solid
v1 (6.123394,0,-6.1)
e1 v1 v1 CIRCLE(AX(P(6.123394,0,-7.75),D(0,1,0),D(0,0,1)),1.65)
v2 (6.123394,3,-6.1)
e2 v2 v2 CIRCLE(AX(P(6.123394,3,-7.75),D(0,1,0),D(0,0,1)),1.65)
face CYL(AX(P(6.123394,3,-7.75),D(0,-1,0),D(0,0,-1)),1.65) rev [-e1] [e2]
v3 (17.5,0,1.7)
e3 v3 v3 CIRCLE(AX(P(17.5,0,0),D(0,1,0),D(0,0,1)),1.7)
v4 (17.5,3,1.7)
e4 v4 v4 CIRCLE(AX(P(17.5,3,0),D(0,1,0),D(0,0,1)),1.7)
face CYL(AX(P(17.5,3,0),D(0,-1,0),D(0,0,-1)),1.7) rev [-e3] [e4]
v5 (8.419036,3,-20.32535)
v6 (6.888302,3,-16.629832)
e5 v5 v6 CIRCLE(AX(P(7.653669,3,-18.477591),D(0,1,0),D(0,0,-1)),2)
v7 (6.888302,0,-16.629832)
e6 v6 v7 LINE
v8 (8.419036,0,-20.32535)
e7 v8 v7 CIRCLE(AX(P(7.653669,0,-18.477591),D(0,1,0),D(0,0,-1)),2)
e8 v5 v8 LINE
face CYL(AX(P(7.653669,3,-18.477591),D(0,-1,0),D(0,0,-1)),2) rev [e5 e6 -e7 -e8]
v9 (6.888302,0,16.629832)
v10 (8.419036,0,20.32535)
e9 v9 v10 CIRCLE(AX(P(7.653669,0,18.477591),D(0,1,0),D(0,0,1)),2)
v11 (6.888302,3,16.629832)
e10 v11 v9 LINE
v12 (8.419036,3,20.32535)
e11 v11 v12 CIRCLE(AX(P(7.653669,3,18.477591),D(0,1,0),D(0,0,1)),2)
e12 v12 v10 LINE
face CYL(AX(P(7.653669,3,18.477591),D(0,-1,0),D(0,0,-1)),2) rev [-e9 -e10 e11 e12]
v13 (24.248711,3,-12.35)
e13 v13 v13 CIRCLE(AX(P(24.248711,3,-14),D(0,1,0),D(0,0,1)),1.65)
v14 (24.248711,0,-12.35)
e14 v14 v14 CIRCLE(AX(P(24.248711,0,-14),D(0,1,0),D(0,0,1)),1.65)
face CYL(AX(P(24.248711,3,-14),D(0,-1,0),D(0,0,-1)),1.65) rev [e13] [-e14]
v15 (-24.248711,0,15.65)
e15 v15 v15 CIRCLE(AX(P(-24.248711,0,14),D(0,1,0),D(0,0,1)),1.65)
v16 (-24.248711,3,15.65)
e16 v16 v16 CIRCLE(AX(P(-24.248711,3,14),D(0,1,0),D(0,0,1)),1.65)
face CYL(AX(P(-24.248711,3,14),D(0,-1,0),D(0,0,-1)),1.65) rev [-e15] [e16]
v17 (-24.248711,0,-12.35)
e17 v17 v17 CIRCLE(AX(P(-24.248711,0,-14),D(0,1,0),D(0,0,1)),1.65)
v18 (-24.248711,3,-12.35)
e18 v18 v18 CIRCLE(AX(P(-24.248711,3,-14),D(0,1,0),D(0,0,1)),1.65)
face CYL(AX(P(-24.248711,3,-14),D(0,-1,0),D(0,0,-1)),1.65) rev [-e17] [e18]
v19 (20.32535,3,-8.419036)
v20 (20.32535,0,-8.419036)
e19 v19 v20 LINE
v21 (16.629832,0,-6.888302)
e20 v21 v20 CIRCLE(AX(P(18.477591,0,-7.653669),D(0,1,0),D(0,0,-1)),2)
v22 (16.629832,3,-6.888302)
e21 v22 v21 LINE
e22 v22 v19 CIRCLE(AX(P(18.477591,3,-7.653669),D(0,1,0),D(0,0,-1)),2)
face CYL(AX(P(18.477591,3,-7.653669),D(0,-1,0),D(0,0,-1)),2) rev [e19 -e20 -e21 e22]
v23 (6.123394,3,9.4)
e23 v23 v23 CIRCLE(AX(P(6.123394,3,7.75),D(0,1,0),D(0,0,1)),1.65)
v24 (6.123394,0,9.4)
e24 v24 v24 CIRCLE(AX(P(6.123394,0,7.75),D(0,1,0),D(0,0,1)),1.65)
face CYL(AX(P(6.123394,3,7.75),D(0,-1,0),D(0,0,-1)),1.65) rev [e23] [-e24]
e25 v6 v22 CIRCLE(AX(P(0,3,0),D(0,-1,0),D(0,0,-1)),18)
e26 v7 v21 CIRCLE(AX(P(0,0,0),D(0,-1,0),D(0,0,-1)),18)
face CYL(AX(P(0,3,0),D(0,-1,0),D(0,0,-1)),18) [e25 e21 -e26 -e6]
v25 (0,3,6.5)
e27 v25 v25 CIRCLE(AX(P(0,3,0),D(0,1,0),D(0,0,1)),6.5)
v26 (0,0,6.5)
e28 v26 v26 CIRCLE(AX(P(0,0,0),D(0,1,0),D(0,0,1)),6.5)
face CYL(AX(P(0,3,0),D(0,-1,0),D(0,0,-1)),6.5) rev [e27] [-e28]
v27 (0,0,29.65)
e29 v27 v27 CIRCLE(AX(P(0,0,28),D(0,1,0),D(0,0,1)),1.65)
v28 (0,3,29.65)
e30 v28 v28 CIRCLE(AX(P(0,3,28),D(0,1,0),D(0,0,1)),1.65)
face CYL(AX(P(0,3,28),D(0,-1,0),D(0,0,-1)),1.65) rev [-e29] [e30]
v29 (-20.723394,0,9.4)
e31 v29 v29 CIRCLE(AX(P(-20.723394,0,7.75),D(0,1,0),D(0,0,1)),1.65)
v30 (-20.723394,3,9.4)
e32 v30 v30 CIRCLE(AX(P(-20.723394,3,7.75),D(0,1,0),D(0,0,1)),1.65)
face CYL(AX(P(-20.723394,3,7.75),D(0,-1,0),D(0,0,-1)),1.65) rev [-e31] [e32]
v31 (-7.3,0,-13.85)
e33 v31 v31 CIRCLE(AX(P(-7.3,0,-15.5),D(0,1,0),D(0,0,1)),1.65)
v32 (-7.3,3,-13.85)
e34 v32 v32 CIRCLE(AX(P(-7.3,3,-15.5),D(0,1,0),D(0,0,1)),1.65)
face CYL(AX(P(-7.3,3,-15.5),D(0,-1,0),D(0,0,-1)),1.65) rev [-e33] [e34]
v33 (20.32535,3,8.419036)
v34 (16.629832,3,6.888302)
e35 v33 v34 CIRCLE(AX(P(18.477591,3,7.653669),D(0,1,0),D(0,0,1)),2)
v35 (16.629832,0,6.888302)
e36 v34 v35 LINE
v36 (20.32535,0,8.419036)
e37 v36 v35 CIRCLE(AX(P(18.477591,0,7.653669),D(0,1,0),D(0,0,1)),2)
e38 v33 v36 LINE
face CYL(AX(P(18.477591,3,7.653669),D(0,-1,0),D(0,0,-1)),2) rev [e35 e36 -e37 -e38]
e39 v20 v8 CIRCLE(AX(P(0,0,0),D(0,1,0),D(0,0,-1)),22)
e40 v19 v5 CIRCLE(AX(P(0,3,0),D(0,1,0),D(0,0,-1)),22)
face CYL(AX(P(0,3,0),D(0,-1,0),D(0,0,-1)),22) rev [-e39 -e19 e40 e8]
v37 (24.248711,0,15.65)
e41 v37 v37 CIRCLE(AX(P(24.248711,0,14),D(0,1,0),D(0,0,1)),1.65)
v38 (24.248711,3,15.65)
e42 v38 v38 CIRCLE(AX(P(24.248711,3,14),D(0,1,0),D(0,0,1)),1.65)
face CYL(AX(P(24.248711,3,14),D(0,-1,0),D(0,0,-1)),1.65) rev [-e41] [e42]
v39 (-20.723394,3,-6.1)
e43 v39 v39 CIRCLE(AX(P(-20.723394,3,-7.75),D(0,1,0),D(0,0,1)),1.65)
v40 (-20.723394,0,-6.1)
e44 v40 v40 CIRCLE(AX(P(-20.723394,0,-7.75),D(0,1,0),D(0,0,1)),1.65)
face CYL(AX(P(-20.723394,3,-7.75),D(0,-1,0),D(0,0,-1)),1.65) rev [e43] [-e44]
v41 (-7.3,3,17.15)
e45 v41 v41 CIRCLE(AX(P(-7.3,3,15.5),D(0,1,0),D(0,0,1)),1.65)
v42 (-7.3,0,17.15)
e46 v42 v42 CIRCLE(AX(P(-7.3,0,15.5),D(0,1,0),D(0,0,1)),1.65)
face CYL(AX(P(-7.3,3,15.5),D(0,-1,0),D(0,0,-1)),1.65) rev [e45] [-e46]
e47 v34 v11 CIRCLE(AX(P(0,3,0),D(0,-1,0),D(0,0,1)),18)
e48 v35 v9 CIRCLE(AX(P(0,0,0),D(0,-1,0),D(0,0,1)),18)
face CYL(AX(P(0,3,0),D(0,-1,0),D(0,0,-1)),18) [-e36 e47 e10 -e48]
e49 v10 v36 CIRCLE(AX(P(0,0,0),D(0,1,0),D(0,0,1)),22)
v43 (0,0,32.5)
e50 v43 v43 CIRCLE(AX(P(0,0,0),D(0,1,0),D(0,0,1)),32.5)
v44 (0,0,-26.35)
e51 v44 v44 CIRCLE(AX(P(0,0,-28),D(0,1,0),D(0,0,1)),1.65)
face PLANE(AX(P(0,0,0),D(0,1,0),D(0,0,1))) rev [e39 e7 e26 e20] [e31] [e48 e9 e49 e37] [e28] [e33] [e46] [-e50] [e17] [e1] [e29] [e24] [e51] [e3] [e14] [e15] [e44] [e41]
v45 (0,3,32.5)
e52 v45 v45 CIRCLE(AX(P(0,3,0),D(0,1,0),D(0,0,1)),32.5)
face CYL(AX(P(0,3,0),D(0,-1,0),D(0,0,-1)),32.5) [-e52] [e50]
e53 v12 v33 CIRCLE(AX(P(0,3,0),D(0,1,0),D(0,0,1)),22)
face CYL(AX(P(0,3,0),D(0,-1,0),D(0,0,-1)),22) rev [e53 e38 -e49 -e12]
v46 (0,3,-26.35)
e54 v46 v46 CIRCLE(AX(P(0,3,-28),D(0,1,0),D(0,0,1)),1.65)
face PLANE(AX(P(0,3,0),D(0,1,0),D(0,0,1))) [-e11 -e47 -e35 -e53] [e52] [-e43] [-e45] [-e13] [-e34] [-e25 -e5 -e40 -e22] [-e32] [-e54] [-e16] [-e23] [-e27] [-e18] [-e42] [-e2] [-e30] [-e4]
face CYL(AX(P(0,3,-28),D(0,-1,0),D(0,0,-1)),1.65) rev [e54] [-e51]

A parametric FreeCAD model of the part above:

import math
import FreeCAD as App
import Part
import Sketcher

doc = App.newDocument("Part")
body = doc.addObject("PartDesign::Body", "Body")

# Sketch on XZ plane
sketch1 = body.newObject("Sketcher::SketchObject", "Sketch")
sketch1.AttachmentSupport = (doc.getObject("XZ_Plane"), [""])
sketch1.MapMode = "FlatFace"
sketch1.addGeometry(Part.Circle(App.Vector(0, 0, 0), App.Vector(0, 0, 1), 32.5), False)
sketch1.addGeometry(Part.Circle(App.Vector(-24.2, -14, 0), App.Vector(0, 0, 1), 1.6), False)
sketch1.addGeometry(Part.Circle(App.Vector(-20.7, -7.8, 0), App.Vector(0, 0, 1), 1.6), False)
sketch1.addGeometry(Part.Circle(App.Vector(-7.3, -15.5, 0), App.Vector(0, 0, 1), 1.6), False)
sketch1.addGeometry(Part.Circle(App.Vector(0, -28, 0), App.Vector(0, 0, 1), 1.6), False)
sketch1.addGeometry(Part.Circle(App.Vector(-24.2, 14, 0), App.Vector(0, 0, 1), 1.6), False)
sketch1.addGeometry(Part.Circle(App.Vector(-20.7, 7.8, 0), App.Vector(0, 0, 1), 1.6), False)
sketch1.addGeometry(Part.Circle(App.Vector(-7.3, 15.5, 0), App.Vector(0, 0, 1), 1.6), False)
sketch1.addGeometry(Part.Circle(App.Vector(6.1, -7.8, 0), App.Vector(0, 0, 1), 1.6), False)
sketch1.addGeometry(Part.Circle(App.Vector(0, 0, 0), App.Vector(0, 0, 1), 6.5), False)
sketch1.addGeometry(Part.ArcOfCircle(Part.Circle(App.Vector(7.7, -18.5, 0), App.Vector(0, 0, 1), 2), math.radians(112), math.radians(293)), False)
sketch1.addGeometry(Part.ArcOfCircle(Part.Circle(App.Vector(0, 0, 0), App.Vector(0, 0, 1), 22), math.radians(-68), math.radians(-22)), False)
sketch1.addGeometry(Part.ArcOfCircle(Part.Circle(App.Vector(18.5, -7.7, 0), App.Vector(0, 0, 1), 2), math.radians(-23), math.radians(158)), False)
sketch1.addGeometry(Part.ArcOfCircle(Part.Circle(App.Vector(0, 0, 0), App.Vector(0, 0, 1), 18), math.radians(-67), math.radians(-23)), False)
sketch1.addGeometry(Part.Circle(App.Vector(17.5, 0, 0), App.Vector(0, 0, 1), 1.7), False)
sketch1.addGeometry(Part.Circle(App.Vector(24.2, -14, 0), App.Vector(0, 0, 1), 1.6), False)
sketch1.addGeometry(Part.Circle(App.Vector(6.1, 7.8, 0), App.Vector(0, 0, 1), 1.6), False)
sketch1.addGeometry(Part.Circle(App.Vector(0, 28, 0), App.Vector(0, 0, 1), 1.6), False)
sketch1.addGeometry(Part.ArcOfCircle(Part.Circle(App.Vector(0, 0, 0), App.Vector(0, 0, 1), 22), math.radians(22), math.radians(68)), False)
sketch1.addGeometry(Part.ArcOfCircle(Part.Circle(App.Vector(7.7, 18.5, 0), App.Vector(0, 0, 1), 2), math.radians(67), math.radians(248)), False)
sketch1.addGeometry(Part.ArcOfCircle(Part.Circle(App.Vector(0, 0, 0), App.Vector(0, 0, 1), 18), math.radians(23), math.radians(67)), False)
sketch1.addGeometry(Part.ArcOfCircle(Part.Circle(App.Vector(18.5, 7.7, 0), App.Vector(0, 0, 1), 2), math.radians(-158), math.radians(23)), False)
sketch1.addGeometry(Part.Circle(App.Vector(24.2, 14, 0), App.Vector(0, 0, 1), 1.6), False)
sketch1.addConstraint(Sketcher.Constraint("Tangent", 10, 2, 11, 1))
sketch1.addConstraint(Sketcher.Constraint("Tangent", 11, 2, 12, 1))
sketch1.addConstraint(Sketcher.Constraint("Tangent", 12, 2, 13, 2))
sketch1.addConstraint(Sketcher.Constraint("Tangent", 13, 1, 10, 1))
sketch1.addConstraint(Sketcher.Constraint("Tangent", 18, 2, 19, 1))
sketch1.addConstraint(Sketcher.Constraint("Tangent", 19, 2, 20, 2))
sketch1.addConstraint(Sketcher.Constraint("Tangent", 20, 1, 21, 1))
sketch1.addConstraint(Sketcher.Constraint("Tangent", 21, 2, 18, 1))
sketch1.addConstraint(Sketcher.Constraint("Coincident", 0, 3, -1, 1))
sketch1.addConstraint(Sketcher.Constraint("Coincident", 9, 3, -1, 1))
sketch1.addConstraint(Sketcher.Constraint("Coincident", 11, 3, -1, 1))
sketch1.addConstraint(Sketcher.Constraint("Coincident", 13, 3, -1, 1))
sketch1.addConstraint(Sketcher.Constraint("Coincident", 18, 3, -1, 1))
sketch1.addConstraint(Sketcher.Constraint("Coincident", 20, 3, -1, 1))
sketch1.addConstraint(Sketcher.Constraint("Equal", 1, 2))
sketch1.addConstraint(Sketcher.Constraint("Equal", 2, 3))
sketch1.addConstraint(Sketcher.Constraint("Equal", 3, 4))
sketch1.addConstraint(Sketcher.Constraint("Equal", 4, 5))
sketch1.addConstraint(Sketcher.Constraint("Equal", 5, 6))
sketch1.addConstraint(Sketcher.Constraint("Equal", 6, 7))
sketch1.addConstraint(Sketcher.Constraint("Equal", 7, 8))
sketch1.addConstraint(Sketcher.Constraint("Equal", 8, 15))
sketch1.addConstraint(Sketcher.Constraint("Equal", 15, 16))
sketch1.addConstraint(Sketcher.Constraint("Equal", 16, 17))
sketch1.addConstraint(Sketcher.Constraint("Equal", 11, 18))
sketch1.addConstraint(Sketcher.Constraint("Equal", 12, 19))
sketch1.addConstraint(Sketcher.Constraint("Equal", 17, 22))
sketch1.addConstraint(Sketcher.Constraint("Symmetric", 5, 3, 15, 3, -1, 1))
sketch1.addConstraint(Sketcher.Constraint("Symmetric", 4, 3, 17, 3, -1, 1))
sketch1.addConstraint(Sketcher.Constraint("Symmetric", 1, 3, 22, 3, -1, 1))
sketch1.addConstraint(Sketcher.Constraint("Symmetric", 1, 3, 15, 3, -2))
sketch1.addConstraint(Sketcher.Constraint("Symmetric", 2, 3, 6, 3, -1))
sketch1.addConstraint(Sketcher.Constraint("Symmetric", 3, 3, 7, 3, -1))
sketch1.addConstraint(Sketcher.Constraint("Symmetric", 8, 3, 16, 3, -1))
sketch1.addConstraint(Sketcher.Constraint("PointOnObject", 4, 3, -2))
sketch1.addConstraint(Sketcher.Constraint("PointOnObject", 14, 3, -1))
sketch1.addConstraint(Sketcher.Constraint("Horizontal", 2, 3, 8, 3))
sketch1.addConstraint(Sketcher.Constraint("Vertical", 10, 3, 19, 3))
sketch1.addConstraint(Sketcher.Constraint("Vertical", 12, 3, 21, 3))
sketch1.addConstraint(Sketcher.Constraint("Diameter", 0, 65.0))
sketch1.addConstraint(Sketcher.Constraint("Diameter", 9, 13.0))
sketch1.addConstraint(Sketcher.Constraint("Radius", 10, 2.0))
sketch1.addConstraint(Sketcher.Constraint("Radius", 11, 22.0))
sketch1.addConstraint(Sketcher.Constraint("Diameter", 1, 3.3))
sketch1.addConstraint(Sketcher.Constraint("Diameter", 14, 3.4))
sketch1.addConstraint(Sketcher.Constraint("DistanceY", 1, 3, -1, 1, 14.0))
sketch1.addConstraint(Sketcher.Constraint("DistanceY", 4, 3, -1, 1, 28.0))
sketch1.addConstraint(Sketcher.Constraint("DistanceY", 3, 3, 7, 3, 31.0))
sketch1.addConstraint(Sketcher.Constraint("DistanceX", 3, 3, -1, 1, 7.3))
sketch1.addConstraint(Sketcher.Constraint("DistanceX", -1, 1, 14, 3, 17.5))
sketch1.addConstraint(Sketcher.Constraint("DistanceY", 2, 3, 6, 3, 15.5))
sketch1.addConstraint(Sketcher.Constraint("DistanceY", 12, 2, -1, 1, 6.888302))
sketch1.addConstraint(Sketcher.Constraint("DistanceX", -1, 1, 13, 1, 6.888302))
sketch1.addConstraint(Sketcher.Constraint("DistanceX", 1, 3, -1, 1, 24.248711))
sketch1.addConstraint(Sketcher.Constraint("DistanceX", 8, 3, 10, 2, 2.295642))
sketch1.addConstraint(Sketcher.Constraint("DistanceX", 2, 3, -1, 1, 20.723394))
pad1 = body.newObject("PartDesign::Pad", "Pad")
pad1.Profile = sketch1
pad1.Length = 3
pad1.Reversed = True

doc.recompute()
